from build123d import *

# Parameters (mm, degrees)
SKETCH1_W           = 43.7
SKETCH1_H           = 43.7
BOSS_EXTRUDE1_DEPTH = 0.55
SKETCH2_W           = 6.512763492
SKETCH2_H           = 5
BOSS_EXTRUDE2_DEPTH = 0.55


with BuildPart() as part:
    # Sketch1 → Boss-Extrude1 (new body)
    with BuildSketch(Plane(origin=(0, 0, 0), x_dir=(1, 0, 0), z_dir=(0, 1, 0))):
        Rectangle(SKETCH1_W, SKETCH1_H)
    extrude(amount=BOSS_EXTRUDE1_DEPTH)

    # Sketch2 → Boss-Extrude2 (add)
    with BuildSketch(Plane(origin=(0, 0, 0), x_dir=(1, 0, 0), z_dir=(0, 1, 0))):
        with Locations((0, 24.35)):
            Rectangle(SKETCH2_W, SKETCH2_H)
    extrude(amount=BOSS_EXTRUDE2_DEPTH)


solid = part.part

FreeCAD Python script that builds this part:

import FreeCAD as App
import Part
import Sketcher
from FreeCAD import Vector

doc = App.newDocument("Part")
body = doc.addObject("PartDesign::Body", "Body")

# Sketch on XZ plane
sketch1 = body.newObject("Sketcher::SketchObject", "Sketch")
sketch1.AttachmentSupport = (doc.getObject("XZ_Plane"), [""])
sketch1.MapMode = "FlatFace"
sketch1.addGeometry(Part.LineSegment(Vector(-22, -22, 0), Vector(-22, 22, 0)), False)
sketch1.addGeometry(Part.LineSegment(Vector(-22, 22, 0), Vector(22, 22, 0)), False)
sketch1.addGeometry(Part.LineSegment(Vector(22, 22, 0), Vector(22, -22, 0)), False)
sketch1.addGeometry(Part.LineSegment(Vector(22, -22, 0), Vector(-22, -22, 0)), False)
sketch1.addConstraint(Sketcher.Constraint("Coincident", 0, 2, 1, 1))
sketch1.addConstraint(Sketcher.Constraint("Coincident", 1, 2, 2, 1))
sketch1.addConstraint(Sketcher.Constraint("Coincident", 2, 2, 3, 1))
sketch1.addConstraint(Sketcher.Constraint("Coincident", 3, 2, 0, 1))
sketch1.addConstraint(Sketcher.Constraint("Vertical", 0))
sketch1.addConstraint(Sketcher.Constraint("Horizontal", 1))
sketch1.addConstraint(Sketcher.Constraint("Vertical", 2))
sketch1.addConstraint(Sketcher.Constraint("Horizontal", 3))
sketch1.addConstraint(Sketcher.Constraint("Symmetric", 0, 2, 2, 2, -1, 1))
sketch1.addConstraint(Sketcher.Constraint("Equal", 3, 0))
sketch1.addConstraint(Sketcher.Constraint("DistanceX", 1, 1, 1, 2, 43.7))
pad1 = body.newObject("PartDesign::Pad", "Pad")
pad1.Profile = sketch1
pad1.Length = 0.55
pad1.Reversed = True

# Sketch on XZ plane
sketch2 = body.newObject("Sketcher::SketchObject", "Sketch001")
sketch2.AttachmentSupport = (doc.getObject("XZ_Plane"), [""])
sketch2.MapMode = "FlatFace"
sketch2.addGeometry(Part.LineSegment(Vector(-3, -27, 0), Vector(-3, -22, 0)), False)
sketch2.addGeometry(Part.LineSegment(Vector(-3, -22, 0), Vector(3, -22, 0)), False)
sketch2.addGeometry(Part.LineSegment(Vector(3, -22, 0), Vector(3, -27, 0)), False)
sketch2.addGeometry(Part.LineSegment(Vector(3, -27, 0), Vector(-3, -27, 0)), False)
sketch2.addConstraint(Sketcher.Constraint("Coincident", 0, 2, 1, 1))
sketch2.addConstraint(Sketcher.Constraint("Coincident", 1, 2, 2, 1))
sketch2.addConstraint(Sketcher.Constraint("Coincident", 2, 2, 3, 1))
sketch2.addConstraint(Sketcher.Constraint("Coincident", 3, 2, 0, 1))
sketch2.addConstraint(Sketcher.Constraint("Vertical", 0))
sketch2.addConstraint(Sketcher.Constraint("Horizontal", 1))
sketch2.addConstraint(Sketcher.Constraint("Vertical", 2))
sketch2.addConstraint(Sketcher.Constraint("Horizontal", 3))
sketch2.addConstraint(Sketcher.Constraint("DistanceY", 0, 1, 0, 2, 5.0))
sketch2.addConstraint(Sketcher.Constraint("DistanceY", 0, 2, -1, 1, 21.85))
sketch2.addConstraint(Sketcher.Constraint("DistanceX", 1, 1, 1, 2, 6.512763))
sketch2.addConstraint(Sketcher.Constraint("DistanceX", 0, 2, -1, 1, 3.256382))
pad2 = body.newObject("PartDesign::Pad", "Pad001")
pad2.Profile = sketch2
pad2.Length = 0.55
pad2.Reversed = True

doc.recompute()
